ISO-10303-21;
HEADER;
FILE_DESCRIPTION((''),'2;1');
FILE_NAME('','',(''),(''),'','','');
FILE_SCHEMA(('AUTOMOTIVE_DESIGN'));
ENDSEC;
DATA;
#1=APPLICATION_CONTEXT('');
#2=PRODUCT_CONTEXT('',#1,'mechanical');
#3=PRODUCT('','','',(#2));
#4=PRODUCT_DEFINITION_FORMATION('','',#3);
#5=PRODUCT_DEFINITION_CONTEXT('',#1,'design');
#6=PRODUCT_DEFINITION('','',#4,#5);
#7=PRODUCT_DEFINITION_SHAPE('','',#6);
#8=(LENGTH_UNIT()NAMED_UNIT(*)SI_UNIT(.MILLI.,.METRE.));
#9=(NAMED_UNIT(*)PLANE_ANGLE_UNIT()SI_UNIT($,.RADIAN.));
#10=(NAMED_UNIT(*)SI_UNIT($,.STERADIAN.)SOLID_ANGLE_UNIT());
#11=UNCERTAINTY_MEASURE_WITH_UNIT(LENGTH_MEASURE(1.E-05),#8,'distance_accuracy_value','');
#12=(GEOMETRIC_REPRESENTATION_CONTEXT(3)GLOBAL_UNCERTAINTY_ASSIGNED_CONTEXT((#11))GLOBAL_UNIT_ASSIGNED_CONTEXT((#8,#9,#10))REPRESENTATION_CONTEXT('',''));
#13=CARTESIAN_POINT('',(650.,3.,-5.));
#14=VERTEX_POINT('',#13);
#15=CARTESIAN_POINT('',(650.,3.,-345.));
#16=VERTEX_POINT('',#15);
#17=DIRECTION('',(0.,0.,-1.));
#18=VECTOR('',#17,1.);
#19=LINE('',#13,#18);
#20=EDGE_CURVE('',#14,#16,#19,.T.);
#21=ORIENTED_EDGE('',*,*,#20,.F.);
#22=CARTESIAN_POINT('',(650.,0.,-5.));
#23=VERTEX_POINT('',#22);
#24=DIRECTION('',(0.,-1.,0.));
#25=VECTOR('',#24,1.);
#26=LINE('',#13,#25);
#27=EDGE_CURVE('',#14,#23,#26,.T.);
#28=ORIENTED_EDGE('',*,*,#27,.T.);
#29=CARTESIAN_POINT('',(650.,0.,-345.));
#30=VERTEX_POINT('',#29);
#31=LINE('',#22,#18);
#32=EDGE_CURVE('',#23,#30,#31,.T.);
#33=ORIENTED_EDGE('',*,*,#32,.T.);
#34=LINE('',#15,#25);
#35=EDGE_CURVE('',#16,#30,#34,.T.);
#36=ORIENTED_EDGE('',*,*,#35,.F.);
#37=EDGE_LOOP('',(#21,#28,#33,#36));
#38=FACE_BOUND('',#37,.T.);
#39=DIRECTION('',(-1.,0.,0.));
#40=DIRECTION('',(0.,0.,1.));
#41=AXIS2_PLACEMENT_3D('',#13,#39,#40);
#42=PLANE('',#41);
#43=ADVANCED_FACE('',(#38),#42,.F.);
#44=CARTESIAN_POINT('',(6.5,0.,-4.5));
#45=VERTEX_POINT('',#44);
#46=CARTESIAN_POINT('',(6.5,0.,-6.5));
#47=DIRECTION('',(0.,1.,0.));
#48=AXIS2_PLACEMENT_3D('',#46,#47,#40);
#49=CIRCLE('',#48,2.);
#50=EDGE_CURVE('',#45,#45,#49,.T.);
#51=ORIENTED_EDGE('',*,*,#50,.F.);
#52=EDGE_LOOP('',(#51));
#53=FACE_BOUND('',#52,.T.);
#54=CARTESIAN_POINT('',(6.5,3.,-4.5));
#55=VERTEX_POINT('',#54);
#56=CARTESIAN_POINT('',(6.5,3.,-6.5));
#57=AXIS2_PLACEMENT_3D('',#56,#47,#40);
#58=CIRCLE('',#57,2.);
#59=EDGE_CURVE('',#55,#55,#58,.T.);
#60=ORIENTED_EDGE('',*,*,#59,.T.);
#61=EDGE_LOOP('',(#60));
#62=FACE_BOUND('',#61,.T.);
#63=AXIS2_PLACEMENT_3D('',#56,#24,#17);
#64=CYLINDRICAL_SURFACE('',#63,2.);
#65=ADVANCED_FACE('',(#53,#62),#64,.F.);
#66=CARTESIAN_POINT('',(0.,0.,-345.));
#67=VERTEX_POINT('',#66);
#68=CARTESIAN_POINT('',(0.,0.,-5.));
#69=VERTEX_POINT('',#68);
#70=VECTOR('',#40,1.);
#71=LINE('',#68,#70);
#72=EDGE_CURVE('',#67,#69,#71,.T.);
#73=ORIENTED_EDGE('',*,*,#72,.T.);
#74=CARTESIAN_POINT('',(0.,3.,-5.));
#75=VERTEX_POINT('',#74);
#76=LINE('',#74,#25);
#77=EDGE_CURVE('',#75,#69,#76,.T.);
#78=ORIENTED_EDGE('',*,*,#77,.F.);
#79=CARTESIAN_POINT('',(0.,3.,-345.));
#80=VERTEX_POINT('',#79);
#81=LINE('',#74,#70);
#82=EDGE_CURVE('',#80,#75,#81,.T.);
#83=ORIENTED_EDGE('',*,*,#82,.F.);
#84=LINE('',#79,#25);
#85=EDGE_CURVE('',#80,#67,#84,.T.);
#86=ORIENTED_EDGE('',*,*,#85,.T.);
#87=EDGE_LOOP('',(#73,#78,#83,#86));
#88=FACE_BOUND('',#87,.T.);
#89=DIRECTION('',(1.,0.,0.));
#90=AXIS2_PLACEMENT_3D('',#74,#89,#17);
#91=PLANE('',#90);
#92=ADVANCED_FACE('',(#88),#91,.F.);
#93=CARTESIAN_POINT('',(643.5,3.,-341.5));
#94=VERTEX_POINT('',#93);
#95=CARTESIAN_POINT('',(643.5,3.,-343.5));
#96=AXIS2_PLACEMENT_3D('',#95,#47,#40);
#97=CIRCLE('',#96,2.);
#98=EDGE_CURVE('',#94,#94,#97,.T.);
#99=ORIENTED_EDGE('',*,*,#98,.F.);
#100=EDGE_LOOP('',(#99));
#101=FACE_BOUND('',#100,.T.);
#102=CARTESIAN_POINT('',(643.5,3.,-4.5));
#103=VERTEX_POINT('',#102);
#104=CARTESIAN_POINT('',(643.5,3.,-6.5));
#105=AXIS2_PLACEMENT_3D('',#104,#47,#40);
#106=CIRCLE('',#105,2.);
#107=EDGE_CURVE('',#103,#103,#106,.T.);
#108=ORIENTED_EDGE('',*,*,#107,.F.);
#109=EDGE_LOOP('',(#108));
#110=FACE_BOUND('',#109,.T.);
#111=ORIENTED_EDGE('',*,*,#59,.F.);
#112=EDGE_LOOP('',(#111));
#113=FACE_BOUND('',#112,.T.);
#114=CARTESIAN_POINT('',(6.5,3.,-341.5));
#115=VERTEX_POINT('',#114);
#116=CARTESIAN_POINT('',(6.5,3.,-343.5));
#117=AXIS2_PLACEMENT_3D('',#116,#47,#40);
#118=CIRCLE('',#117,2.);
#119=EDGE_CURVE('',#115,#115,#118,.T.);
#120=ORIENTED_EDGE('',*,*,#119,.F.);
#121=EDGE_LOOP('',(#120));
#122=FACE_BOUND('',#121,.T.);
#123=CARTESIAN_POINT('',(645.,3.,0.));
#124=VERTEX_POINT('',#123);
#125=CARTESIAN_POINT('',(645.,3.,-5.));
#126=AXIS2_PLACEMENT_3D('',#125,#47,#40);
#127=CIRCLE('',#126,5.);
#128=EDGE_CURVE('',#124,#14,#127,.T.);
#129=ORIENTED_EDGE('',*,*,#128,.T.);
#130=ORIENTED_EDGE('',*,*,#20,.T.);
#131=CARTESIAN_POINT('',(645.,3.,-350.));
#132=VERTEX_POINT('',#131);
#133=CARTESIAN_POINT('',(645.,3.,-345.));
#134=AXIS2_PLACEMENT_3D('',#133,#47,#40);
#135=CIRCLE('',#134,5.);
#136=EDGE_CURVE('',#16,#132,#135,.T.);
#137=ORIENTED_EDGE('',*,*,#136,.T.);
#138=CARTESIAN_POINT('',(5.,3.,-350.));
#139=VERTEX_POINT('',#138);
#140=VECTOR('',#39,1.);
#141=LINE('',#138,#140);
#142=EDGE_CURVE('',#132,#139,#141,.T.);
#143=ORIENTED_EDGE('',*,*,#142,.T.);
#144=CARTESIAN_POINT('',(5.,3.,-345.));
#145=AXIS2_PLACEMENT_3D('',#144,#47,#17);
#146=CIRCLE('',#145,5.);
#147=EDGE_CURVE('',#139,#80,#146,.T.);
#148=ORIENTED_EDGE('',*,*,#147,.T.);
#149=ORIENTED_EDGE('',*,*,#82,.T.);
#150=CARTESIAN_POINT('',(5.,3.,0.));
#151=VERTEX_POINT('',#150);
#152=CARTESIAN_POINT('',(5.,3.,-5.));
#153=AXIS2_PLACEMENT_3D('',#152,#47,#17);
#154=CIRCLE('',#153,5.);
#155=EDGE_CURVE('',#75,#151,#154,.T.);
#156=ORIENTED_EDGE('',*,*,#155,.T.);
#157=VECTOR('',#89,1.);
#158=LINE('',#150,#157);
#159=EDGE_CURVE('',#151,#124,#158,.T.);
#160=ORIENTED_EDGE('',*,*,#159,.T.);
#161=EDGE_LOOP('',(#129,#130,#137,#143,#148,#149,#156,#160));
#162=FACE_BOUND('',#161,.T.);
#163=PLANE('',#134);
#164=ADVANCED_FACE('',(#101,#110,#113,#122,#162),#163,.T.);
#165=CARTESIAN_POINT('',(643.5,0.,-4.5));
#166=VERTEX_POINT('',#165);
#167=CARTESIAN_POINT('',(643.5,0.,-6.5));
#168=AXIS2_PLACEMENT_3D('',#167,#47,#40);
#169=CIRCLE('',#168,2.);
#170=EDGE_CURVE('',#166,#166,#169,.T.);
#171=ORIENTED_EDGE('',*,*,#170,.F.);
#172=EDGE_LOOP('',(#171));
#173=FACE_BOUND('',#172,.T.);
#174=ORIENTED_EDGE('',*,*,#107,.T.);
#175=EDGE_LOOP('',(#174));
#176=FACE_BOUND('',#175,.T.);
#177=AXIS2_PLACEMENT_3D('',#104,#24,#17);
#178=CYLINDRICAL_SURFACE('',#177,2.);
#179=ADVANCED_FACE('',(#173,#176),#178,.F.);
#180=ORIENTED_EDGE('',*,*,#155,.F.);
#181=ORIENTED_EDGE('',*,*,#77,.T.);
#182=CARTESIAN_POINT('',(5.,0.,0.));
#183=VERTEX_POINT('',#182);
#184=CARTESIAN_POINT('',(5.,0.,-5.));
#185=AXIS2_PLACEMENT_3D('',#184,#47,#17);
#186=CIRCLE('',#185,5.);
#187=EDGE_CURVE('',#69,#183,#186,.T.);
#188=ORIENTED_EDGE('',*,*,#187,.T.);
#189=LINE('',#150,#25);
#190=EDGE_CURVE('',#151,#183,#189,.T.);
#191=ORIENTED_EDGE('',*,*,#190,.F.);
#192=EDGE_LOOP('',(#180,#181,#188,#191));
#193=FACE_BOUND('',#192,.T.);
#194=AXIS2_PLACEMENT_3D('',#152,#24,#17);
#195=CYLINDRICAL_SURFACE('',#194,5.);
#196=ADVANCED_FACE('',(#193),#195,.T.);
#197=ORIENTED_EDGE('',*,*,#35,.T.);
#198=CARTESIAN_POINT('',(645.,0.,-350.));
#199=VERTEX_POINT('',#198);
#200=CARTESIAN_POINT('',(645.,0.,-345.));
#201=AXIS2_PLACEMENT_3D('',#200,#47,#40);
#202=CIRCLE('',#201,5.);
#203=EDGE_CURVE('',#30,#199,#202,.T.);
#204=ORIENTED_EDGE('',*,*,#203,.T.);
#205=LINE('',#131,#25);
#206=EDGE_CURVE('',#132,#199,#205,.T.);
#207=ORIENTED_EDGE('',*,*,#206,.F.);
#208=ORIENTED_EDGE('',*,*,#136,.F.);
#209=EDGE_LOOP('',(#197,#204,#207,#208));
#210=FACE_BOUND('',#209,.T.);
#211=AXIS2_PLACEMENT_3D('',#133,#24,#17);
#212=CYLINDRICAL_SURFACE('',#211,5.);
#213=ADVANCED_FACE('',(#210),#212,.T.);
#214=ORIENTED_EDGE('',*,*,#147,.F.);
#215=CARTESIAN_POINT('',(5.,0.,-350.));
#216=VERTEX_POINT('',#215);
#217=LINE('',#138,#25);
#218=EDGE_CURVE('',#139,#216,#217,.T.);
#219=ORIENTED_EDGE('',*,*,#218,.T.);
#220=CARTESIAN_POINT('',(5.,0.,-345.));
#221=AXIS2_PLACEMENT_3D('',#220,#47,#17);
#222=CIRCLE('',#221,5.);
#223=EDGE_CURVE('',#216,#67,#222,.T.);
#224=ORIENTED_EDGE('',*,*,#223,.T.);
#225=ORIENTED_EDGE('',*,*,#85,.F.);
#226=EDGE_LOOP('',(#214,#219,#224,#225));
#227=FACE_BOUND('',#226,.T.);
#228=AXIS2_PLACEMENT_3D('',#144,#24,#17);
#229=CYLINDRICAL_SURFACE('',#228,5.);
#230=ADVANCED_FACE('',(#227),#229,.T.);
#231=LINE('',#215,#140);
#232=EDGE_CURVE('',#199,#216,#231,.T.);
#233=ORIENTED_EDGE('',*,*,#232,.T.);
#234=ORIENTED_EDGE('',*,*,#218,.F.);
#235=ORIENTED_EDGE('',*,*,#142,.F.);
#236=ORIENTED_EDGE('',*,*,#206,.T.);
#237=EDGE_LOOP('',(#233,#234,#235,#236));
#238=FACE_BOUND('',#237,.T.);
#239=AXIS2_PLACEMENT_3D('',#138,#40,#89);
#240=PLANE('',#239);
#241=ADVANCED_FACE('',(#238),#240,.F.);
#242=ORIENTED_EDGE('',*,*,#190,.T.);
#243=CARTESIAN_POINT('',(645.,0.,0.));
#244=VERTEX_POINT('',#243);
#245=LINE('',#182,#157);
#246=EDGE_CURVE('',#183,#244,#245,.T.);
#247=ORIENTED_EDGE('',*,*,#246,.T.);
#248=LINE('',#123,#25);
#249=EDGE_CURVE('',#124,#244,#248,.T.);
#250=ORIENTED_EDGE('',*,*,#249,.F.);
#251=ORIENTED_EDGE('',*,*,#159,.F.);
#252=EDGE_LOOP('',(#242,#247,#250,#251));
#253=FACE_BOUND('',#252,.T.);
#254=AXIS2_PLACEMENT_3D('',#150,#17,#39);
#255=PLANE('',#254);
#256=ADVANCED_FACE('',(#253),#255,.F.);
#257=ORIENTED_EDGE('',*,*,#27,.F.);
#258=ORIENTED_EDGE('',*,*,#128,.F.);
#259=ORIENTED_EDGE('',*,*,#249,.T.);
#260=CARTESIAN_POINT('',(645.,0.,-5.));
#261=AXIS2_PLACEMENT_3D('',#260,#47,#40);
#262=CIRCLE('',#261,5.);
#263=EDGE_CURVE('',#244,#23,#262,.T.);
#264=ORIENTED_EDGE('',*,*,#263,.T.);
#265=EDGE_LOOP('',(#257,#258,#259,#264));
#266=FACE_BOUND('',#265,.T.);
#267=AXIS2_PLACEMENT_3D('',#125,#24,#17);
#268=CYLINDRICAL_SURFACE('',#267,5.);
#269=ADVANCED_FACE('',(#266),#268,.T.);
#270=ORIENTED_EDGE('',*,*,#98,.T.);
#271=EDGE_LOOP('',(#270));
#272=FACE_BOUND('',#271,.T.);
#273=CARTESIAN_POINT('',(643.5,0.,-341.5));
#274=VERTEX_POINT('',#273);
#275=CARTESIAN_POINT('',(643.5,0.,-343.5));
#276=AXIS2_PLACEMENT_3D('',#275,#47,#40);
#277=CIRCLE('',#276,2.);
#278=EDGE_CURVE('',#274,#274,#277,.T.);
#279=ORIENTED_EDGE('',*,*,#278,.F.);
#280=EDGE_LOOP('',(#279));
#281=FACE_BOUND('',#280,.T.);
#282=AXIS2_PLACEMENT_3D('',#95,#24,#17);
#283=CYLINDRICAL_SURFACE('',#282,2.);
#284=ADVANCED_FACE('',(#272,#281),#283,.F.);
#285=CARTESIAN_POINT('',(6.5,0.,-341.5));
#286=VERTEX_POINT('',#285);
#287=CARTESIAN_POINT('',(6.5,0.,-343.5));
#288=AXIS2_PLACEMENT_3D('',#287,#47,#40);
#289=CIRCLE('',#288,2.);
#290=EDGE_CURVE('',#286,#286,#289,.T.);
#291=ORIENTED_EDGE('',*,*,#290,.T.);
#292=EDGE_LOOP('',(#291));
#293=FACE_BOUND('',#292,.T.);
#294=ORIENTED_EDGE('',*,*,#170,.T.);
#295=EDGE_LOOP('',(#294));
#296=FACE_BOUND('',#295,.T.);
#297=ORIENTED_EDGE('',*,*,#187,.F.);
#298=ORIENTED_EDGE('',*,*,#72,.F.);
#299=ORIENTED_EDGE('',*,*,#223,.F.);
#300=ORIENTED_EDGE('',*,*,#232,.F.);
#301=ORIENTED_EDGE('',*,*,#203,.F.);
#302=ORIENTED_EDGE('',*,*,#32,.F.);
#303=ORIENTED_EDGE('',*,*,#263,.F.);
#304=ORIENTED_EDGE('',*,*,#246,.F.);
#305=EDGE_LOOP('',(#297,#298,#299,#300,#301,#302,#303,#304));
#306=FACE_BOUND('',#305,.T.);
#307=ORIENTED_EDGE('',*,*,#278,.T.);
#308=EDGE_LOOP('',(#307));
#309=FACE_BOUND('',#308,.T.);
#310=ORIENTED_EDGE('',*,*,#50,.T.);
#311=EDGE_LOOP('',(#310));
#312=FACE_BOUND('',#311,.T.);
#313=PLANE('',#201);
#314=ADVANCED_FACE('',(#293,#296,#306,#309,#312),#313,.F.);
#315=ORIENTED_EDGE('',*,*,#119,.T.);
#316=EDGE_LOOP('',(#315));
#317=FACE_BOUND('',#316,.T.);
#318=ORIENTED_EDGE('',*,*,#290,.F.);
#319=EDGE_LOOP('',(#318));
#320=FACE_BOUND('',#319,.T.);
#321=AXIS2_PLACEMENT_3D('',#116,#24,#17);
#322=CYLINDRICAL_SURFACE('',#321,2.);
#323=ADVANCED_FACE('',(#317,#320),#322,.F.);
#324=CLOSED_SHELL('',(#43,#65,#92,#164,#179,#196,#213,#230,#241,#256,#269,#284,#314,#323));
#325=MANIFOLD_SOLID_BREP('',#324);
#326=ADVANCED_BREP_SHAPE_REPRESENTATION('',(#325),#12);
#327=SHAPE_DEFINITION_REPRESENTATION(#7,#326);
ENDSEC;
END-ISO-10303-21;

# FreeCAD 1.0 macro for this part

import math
import FreeCAD as App
import Part
import Sketcher
Q = App.Units.Quantity

doc = App.newDocument("Part")
body = doc.addObject("PartDesign::Body", "Body")

# Sketch on XZ plane
sketch1 = body.newObject("Sketcher::SketchObject", "Sketch")
sketch1.AttachmentSupport = (doc.getObject("XZ_Plane"), [""])
sketch1.MapMode = "FlatFace"
sketch1.addGeometry(Part.LineSegment(App.Vector(5, 0, 0), App.Vector(645, 0, 0)), False)
sketch1.addGeometry(Part.ArcOfCircle(Part.Circle(App.Vector(645, -5, 0), App.Vector(0, 0, 1), 5), math.radians(0), math.radians(90)), False)
sketch1.addGeometry(Part.LineSegment(App.Vector(650, -5, 0), App.Vector(650, -345, 0)), False)
sketch1.addGeometry(Part.ArcOfCircle(Part.Circle(App.Vector(645, -345, 0), App.Vector(0, 0, 1), 5), math.radians(-90), math.radians(0)), False)
sketch1.addGeometry(Part.LineSegment(App.Vector(645, -350, 0), App.Vector(5, -350, 0)), False)
sketch1.addGeometry(Part.ArcOfCircle(Part.Circle(App.Vector(5, -345, 0), App.Vector(0, 0, 1), 5), math.radians(180), math.radians(270)), False)
sketch1.addGeometry(Part.LineSegment(App.Vector(0, -345, 0), App.Vector(0, -5, 0)), False)
sketch1.addGeometry(Part.ArcOfCircle(Part.Circle(App.Vector(5, -5, 0), App.Vector(0, 0, 1), 5), math.radians(90), math.radians(180)), False)
sketch1.addGeometry(Part.Circle(App.Vector(6.5, -6.5, 0), App.Vector(0, 0, 1), 2), False)
sketch1.addGeometry(Part.Circle(App.Vector(643.5, -6.5, 0), App.Vector(0, 0, 1), 2), False)
sketch1.addGeometry(Part.Circle(App.Vector(6.5, -343.5, 0), App.Vector(0, 0, 1), 2), False)
sketch1.addGeometry(Part.Circle(App.Vector(643.5, -343.5, 0), App.Vector(0, 0, 1), 2), False)
sketch1.addConstraint(Sketcher.Constraint("Tangent", 0, 2, 1, 2))
sketch1.addConstraint(Sketcher.Constraint("Tangent", 1, 1, 2, 1))
sketch1.addConstraint(Sketcher.Constraint("Tangent", 2, 2, 3, 2))
sketch1.addConstraint(Sketcher.Constraint("Tangent", 3, 1, 4, 1))
sketch1.addConstraint(Sketcher.Constraint("Tangent", 4, 2, 5, 2))
sketch1.addConstraint(Sketcher.Constraint("Tangent", 5, 1, 6, 1))
sketch1.addConstraint(Sketcher.Constraint("Tangent", 6, 2, 7, 2))
sketch1.addConstraint(Sketcher.Constraint("Tangent", 7, 1, 0, 1))
sketch1.addConstraint(Sketcher.Constraint("Horizontal", 0))
sketch1.addConstraint(Sketcher.Constraint("Vertical", 2))
sketch1.addConstraint(Sketcher.Constraint("Horizontal", 4))
sketch1.addConstraint(Sketcher.Constraint("Vertical", 6))
sketch1.addConstraint(Sketcher.Constraint("Equal", 1, 3))
sketch1.addConstraint(Sketcher.Constraint("Equal", 3, 5))
sketch1.addConstraint(Sketcher.Constraint("Equal", 5, 7))
sketch1.addConstraint(Sketcher.Constraint("Equal", 8, 9))
sketch1.addConstraint(Sketcher.Constraint("Equal", 9, 10))
sketch1.addConstraint(Sketcher.Constraint("Equal", 10, 11))
sketch1.addConstraint(Sketcher.Constraint("PointOnObject", 0, 2, -1))
sketch1.addConstraint(Sketcher.Constraint("PointOnObject", 5, 1, -2))
sketch1.addConstraint(Sketcher.Constraint("Horizontal", 8, 3, 9, 3))
sketch1.addConstraint(Sketcher.Constraint("Horizontal", 10, 3, 11, 3))
sketch1.addConstraint(Sketcher.Constraint("Vertical", 8, 3, 10, 3))
sketch1.addConstraint(Sketcher.Constraint("Vertical", 9, 3, 11, 3))
sketch1.addConstraint(Sketcher.Constraint("Diameter", 8, Q("4 mm")))
sketch1.addConstraint(Sketcher.Constraint("Radius", 1, Q("5 mm")))
sketch1.addConstraint(Sketcher.Constraint("DistanceX", 0, 1, 0, 2, Q("640 mm")))
sketch1.addConstraint(Sketcher.Constraint("DistanceY", 2, 2, 2, 1, Q("340 mm")))
sketch1.addConstraint(Sketcher.Constraint("DistanceX", 8, 3, 9, 3, Q("637 mm")))
sketch1.addConstraint(Sketcher.Constraint("DistanceY", 10, 3, 8, 3, Q("337 mm")))
sketch1.addConstraint(Sketcher.Constraint("DistanceX", -1, 1, 8, 3, Q("6.5 mm")))
sketch1.addConstraint(Sketcher.Constraint("DistanceY", 8, 3, -1, 1, Q("6.5 mm")))
pad1 = body.newObject("PartDesign::Pad", "Pad")
pad1.Profile = sketch1
pad1.Length = 3
pad1.Reversed = True

doc.recompute()
